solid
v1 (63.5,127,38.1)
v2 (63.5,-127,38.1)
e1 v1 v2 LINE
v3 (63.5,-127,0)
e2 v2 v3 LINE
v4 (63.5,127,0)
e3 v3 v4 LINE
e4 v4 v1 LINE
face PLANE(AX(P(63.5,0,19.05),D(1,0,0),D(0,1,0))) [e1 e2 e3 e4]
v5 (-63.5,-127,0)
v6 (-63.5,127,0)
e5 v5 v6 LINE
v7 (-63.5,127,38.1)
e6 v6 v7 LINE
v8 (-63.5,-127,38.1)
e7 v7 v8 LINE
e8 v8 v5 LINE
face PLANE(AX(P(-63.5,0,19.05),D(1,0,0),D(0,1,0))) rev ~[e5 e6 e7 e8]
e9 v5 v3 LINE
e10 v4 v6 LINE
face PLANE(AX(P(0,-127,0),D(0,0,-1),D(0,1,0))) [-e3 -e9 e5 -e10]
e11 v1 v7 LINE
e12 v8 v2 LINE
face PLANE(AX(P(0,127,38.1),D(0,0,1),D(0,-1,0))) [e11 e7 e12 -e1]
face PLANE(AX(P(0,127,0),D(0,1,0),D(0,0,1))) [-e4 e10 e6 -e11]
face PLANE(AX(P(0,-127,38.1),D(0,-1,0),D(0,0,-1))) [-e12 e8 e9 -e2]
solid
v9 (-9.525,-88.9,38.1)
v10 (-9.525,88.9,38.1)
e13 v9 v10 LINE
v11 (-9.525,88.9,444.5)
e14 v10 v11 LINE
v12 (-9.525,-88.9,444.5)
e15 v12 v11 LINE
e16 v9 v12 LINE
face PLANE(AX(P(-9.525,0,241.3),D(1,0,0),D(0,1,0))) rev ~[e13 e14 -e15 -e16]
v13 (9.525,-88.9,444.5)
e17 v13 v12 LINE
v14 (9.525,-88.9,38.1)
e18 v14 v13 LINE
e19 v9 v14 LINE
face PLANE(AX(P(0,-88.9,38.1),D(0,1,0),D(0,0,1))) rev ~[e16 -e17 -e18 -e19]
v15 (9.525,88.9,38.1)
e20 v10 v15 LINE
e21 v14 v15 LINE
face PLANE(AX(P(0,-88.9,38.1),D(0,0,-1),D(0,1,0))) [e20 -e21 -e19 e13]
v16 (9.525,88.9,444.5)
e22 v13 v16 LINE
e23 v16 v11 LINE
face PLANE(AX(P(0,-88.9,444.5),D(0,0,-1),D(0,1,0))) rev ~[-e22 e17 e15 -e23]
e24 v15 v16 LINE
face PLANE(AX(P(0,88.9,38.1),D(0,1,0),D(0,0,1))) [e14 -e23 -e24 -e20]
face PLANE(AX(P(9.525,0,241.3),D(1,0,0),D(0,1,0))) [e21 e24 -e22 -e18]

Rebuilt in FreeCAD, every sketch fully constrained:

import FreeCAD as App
import Part
import Sketcher

V = App.Vector
Q = App.Units.Quantity


def add_polygon(sketch, points):
    """Adds a closed chain of lines whose ends are joined by coincident constraints."""
    first, n = sketch.GeometryCount, len(points)
    for a, b in zip(points, points[1:] + points[:1]):
        sketch.addGeometry(Part.LineSegment(App.Vector(*a, 0), App.Vector(*b, 0)), False)
    for i in range(n):
        sketch.addConstraint(Sketcher.Constraint("Coincident", first + i, 2, first + (i + 1) % n, 1))

doc = App.newDocument("Part")
body = doc.addObject("PartDesign::Body", "Body")

sketch1 = body.newObject("Sketcher::SketchObject", "Sketch")
sketch1.AttachmentSupport = (doc.getObject("YZ_Plane"), [""])
sketch1.MapMode = "FlatFace"
add_polygon(sketch1, [(-89, 444), (-89, 38), (89, 38), (89, 444)])
sketch1.addConstraint(Sketcher.Constraint("Vertical", 0))
sketch1.addConstraint(Sketcher.Constraint("Horizontal", 1))
sketch1.addConstraint(Sketcher.Constraint("Vertical", 2))
sketch1.addConstraint(Sketcher.Constraint("Horizontal", 3))
sketch1.addConstraint(Sketcher.Constraint("DistanceX", 1, 1, 1, 2, Q("7 in")))
sketch1.addConstraint(Sketcher.Constraint("DistanceY", 0, 2, 0, 1, Q("16 in")))
sketch1.addConstraint(Sketcher.Constraint("DistanceX", 0, 2, -1, 1, Q("3.5 in")))
sketch1.addConstraint(Sketcher.Constraint("DistanceY", -1, 1, 0, 2, Q("1.5 in")))
pad1 = body.newObject("PartDesign::Pad", "Pad")
pad1.Profile = sketch1
pad1.Length = Q("0.75 in")
pad1.Midplane = True
body2 = doc.addObject("PartDesign::Body", "Body001")

sketch2 = body2.newObject("Sketcher::SketchObject", "Sketch001")
sketch2.AttachmentSupport = (doc.getObject("YZ_Plane001"), [""])
sketch2.MapMode = "FlatFace"
add_polygon(sketch2, [(127, 38), (-127, 38), (-127, 0), (127, 0)])
sketch2.addConstraint(Sketcher.Constraint("Horizontal", 0))
sketch2.addConstraint(Sketcher.Constraint("Vertical", 1))
sketch2.addConstraint(Sketcher.Constraint("Horizontal", 2))
sketch2.addConstraint(Sketcher.Constraint("Vertical", 3))
sketch2.addConstraint(Sketcher.Constraint("Symmetric", 1, 2, 2, 2, -1, 1))
sketch2.addConstraint(Sketcher.Constraint("DistanceX", 0, 2, 0, 1, Q("10 in")))
sketch2.addConstraint(Sketcher.Constraint("DistanceY", 1, 2, 1, 1, Q("1.5 in")))
pad2 = body2.newObject("PartDesign::Pad", "Pad001")
pad2.Profile = sketch2
pad2.Length = Q("5 in")
pad2.Midplane = True

doc.recompute()
